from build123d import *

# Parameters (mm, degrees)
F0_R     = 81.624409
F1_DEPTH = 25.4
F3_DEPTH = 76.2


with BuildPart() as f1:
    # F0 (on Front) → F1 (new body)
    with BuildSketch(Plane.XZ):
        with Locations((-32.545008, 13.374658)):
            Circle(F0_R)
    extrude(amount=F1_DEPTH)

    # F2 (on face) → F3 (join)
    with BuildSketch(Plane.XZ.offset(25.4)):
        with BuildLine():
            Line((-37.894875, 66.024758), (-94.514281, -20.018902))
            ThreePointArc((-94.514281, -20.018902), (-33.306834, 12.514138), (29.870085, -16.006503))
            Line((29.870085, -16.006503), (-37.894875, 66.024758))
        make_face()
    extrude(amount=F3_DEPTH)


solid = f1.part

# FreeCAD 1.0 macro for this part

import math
import FreeCAD as App
import Part
import Sketcher
Q = App.Units.Quantity

doc = App.newDocument("Part")
body = doc.addObject("PartDesign::Body", "Body")

sketch1 = body.newObject("Sketcher::SketchObject", "Sketch")
sketch1.AttachmentSupport = (doc.getObject("XZ_Plane"), [""])
sketch1.MapMode = "FlatFace"
sketch1.addGeometry(Part.Circle(App.Vector(-33, 13, 0), App.Vector(0, 0, 1), 82), False)
sketch1.addConstraint([
    Sketcher.Constraint("Diameter", 0, Q("163.248818 mm")),
    Sketcher.Constraint("DistanceX", 0, 3, -1, 1, Q("32.545008 mm")),
    Sketcher.Constraint("DistanceY", -1, 1, 0, 3, Q("13.374658 mm")),
])
pad1 = body.newObject("PartDesign::Pad", "Pad")
pad1.Profile = sketch1
pad1.Length = Q("1 in")

sketch2 = body.newObject("Sketcher::SketchObject", "Sketch001")
sketch2.AttachmentSupport = (doc.getObject("XZ_Plane"), [""])
sketch2.MapMode = "FlatFace"
sketch2.AttachmentOffset = App.Placement(App.Vector(0, 0, 1 * 25.4), App.Rotation())
sketch2.addGeometry([
    Part.LineSegment(App.Vector(-38, 66, 0), App.Vector(-95, -20, 0)),
    Part.ArcOfCircle(Part.Circle(App.Vector(-31, -66, 0), App.Vector(0, 0, 1), 79), math.radians(40), math.radians(144)),
    Part.LineSegment(App.Vector(30, -16, 0), App.Vector(-38, 66, 0)),
], False)
sketch2.addConstraint([
    Sketcher.Constraint("Coincident", 0, 2, 1, 2),
    Sketcher.Constraint("Tangent", 1, 1, 2, 1),
    Sketcher.Constraint("Coincident", 2, 2, 0, 1),
    Sketcher.Constraint("DistanceY", -1, 1, 2, 2, Q("2.5993999 in")),
    Sketcher.Constraint("Radius", 1, Q("78.656228 mm")),
    Sketcher.Constraint("DistanceY", 0, 2, 1, 1, Q("4.012399 mm")),
    Sketcher.Constraint("Distance", 2, Q("106.40121 mm")),
    Sketcher.Constraint("DistanceX", 0, 2, -1, 1, Q("94.514281 mm")),
    Sketcher.Constraint("DistanceX", 1, 3, 1, 1, Q("60.640941 mm")),
])
pad2 = body.newObject("PartDesign::Pad", "Pad001")
pad2.Profile = sketch2
pad2.Length = Q("3 in")

doc.recompute()
